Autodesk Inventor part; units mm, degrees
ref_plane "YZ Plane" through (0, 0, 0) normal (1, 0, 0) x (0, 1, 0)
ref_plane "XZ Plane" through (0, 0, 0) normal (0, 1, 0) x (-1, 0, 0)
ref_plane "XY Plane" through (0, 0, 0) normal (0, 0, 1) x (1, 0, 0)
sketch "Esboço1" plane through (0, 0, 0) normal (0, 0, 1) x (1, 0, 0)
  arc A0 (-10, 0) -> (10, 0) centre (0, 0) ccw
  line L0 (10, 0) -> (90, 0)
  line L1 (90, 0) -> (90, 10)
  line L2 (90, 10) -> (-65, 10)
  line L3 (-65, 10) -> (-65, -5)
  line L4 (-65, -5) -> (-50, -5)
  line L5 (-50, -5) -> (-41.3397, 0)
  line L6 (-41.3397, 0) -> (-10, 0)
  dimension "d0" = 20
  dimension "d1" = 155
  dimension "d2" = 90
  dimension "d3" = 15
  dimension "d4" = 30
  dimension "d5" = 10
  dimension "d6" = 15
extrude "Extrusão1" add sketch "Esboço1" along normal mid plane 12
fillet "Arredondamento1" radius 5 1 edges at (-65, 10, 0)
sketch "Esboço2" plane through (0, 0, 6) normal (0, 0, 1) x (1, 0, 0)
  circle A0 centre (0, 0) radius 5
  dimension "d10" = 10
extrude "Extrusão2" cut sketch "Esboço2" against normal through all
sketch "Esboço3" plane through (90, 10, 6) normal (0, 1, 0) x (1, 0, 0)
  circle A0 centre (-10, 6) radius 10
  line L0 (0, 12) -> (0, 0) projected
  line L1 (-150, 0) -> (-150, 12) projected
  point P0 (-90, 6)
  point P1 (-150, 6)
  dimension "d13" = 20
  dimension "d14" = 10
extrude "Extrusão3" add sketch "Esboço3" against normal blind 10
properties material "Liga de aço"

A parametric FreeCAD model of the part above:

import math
import FreeCAD as App
import Part
import Sketcher

V = App.Vector
Q = App.Units.Quantity


def edges_at(feature, points):
    """Names of the edges that pass closest to the given points."""
    edges = feature.Shape.Edges
    near = lambda p: min(range(len(edges)), key=lambda i: edges[i].distToShape(Part.Vertex(*p))[0])
    return sorted({f"Edge{near(p) + 1}" for p in points})

doc = App.newDocument("Part")
body = doc.addObject("PartDesign::Body", "Body")

sketch1 = doc.addObject("Sketcher::SketchObject", "Sketch")
body.addObject(sketch1)
sketch1.AttachmentSupport = (doc.XY_Plane, [""])
sketch1.MapMode = "FlatFace"
sketch1.addGeometry(Part.LineSegment(V(-41.3397, 0, 0), V(-10, 0, 0)), False)
sketch1.addGeometry(Part.ArcOfCircle(Part.Circle(V(0, 0, 0), V(0, 0, 1), 10), math.radians(180), math.radians(360)), False)
sketch1.addGeometry(Part.LineSegment(V(10, 0, 0), V(90, 0, 0)), False)
sketch1.addGeometry(Part.LineSegment(V(90, 0, 0), V(90, 10, 0)), False)
sketch1.addGeometry(Part.LineSegment(V(90, 10, 0), V(-65, 10, 0)), False)
sketch1.addGeometry(Part.LineSegment(V(-65, 10, 0), V(-65, -5, 0)), False)
sketch1.addGeometry(Part.LineSegment(V(-65, -5, 0), V(-50, -5, 0)), False)
sketch1.addGeometry(Part.LineSegment(V(-50, -5, 0), V(-41.3397, 0, 0)), False)
sketch1.addConstraint(Sketcher.Constraint("Coincident", 0, 2, 1, 1))
sketch1.addConstraint(Sketcher.Constraint("Coincident", 1, 2, 2, 1))
sketch1.addConstraint(Sketcher.Constraint("Coincident", 2, 2, 3, 1))
sketch1.addConstraint(Sketcher.Constraint("Coincident", 3, 2, 4, 1))
sketch1.addConstraint(Sketcher.Constraint("Coincident", 4, 2, 5, 1))
sketch1.addConstraint(Sketcher.Constraint("Coincident", 5, 2, 6, 1))
sketch1.addConstraint(Sketcher.Constraint("Coincident", 6, 2, 7, 1))
sketch1.addConstraint(Sketcher.Constraint("Coincident", 7, 2, 0, 1))
sketch1.addConstraint(Sketcher.Constraint("Horizontal", 0))
sketch1.addConstraint(Sketcher.Constraint("Horizontal", 2))
sketch1.addConstraint(Sketcher.Constraint("Vertical", 3))
sketch1.addConstraint(Sketcher.Constraint("Horizontal", 4))
sketch1.addConstraint(Sketcher.Constraint("Vertical", 5))
sketch1.addConstraint(Sketcher.Constraint("Horizontal", 6))
sketch1.addConstraint(Sketcher.Constraint("Coincident", 1, 3, -1, 1))
sketch1.addConstraint(Sketcher.Constraint("PointOnObject", 0, 2, -1))
sketch1.addConstraint(Sketcher.Constraint("PointOnObject", 1, 2, -1))
sketch1.addConstraint(Sketcher.Constraint("Equal", 6, 5))
sketch1.addConstraint(Sketcher.Constraint("Radius", 1, Q("10 mm")))
sketch1.addConstraint(Sketcher.Constraint("DistanceX", 4, 2, 4, 1, Q("155 mm")))
sketch1.addConstraint(Sketcher.Constraint("DistanceX", 6, 1, 6, 2, Q("15 mm")))
sketch1.addConstraint(Sketcher.Constraint("DistanceY", 3, 1, 3, 2, Q("10 mm")))
sketch1.addConstraint(Sketcher.Constraint("Angle", 7, Q("29.9999 deg")))
sketch1.addConstraint(Sketcher.Constraint("DistanceX", -1, 1, 2, 2, Q("90 mm")))
pad1 = doc.addObject("PartDesign::Pad", "Pad")
body.addObject(pad1)
pad1.Profile = sketch1
pad1.Length = 12
pad1.Midplane = True
doc.recompute()

fillet = doc.addObject("PartDesign::Fillet", "Fillet")
body.addObject(fillet)
fillet.Base = (pad1, edges_at(pad1, [(-65, 10, 0)]))
fillet.Radius = 5

sketch2 = doc.addObject("Sketcher::SketchObject", "Sketch001")
body.addObject(sketch2)
sketch2.AttachmentSupport = (doc.XY_Plane, [""])
sketch2.MapMode = "FlatFace"
sketch2.AttachmentOffset = App.Placement(V(0, 0, 6), App.Rotation())
sketch2.addGeometry(Part.Circle(V(0, 0, 0), V(0, 0, 1), 5), False)
sketch2.addConstraint(Sketcher.Constraint("Coincident", 0, 3, -1, 1))
sketch2.addConstraint(Sketcher.Constraint("Diameter", 0, Q("10 mm")))
pocket1 = doc.addObject("PartDesign::Pocket", "Pocket")
body.addObject(pocket1)
pocket1.Profile = sketch2
pocket1.Type = "ThroughAll"

sketch3 = doc.addObject("Sketcher::SketchObject", "Sketch002")
body.addObject(sketch3)
sketch3.AttachmentSupport = (doc.XZ_Plane, [""])
sketch3.MapMode = "FlatFace"
sketch3.AttachmentOffset = App.Placement(V(0, 0, -10), App.Rotation())
sketch3.addGeometry(Part.Circle(V(80, 0, 0), V(0, 0, 1), 10), False)
sketch3.addConstraint(Sketcher.Constraint("PointOnObject", 0, 3, -1))
sketch3.addConstraint(Sketcher.Constraint("Diameter", 0, Q("20 mm")))
sketch3.addConstraint(Sketcher.Constraint("DistanceX", -1, 1, 0, 3, Q("80 mm")))
pad2 = doc.addObject("PartDesign::Pad", "Pad001")
body.addObject(pad2)
pad2.Profile = sketch3
pad2.Length = 10

doc.recompute()
